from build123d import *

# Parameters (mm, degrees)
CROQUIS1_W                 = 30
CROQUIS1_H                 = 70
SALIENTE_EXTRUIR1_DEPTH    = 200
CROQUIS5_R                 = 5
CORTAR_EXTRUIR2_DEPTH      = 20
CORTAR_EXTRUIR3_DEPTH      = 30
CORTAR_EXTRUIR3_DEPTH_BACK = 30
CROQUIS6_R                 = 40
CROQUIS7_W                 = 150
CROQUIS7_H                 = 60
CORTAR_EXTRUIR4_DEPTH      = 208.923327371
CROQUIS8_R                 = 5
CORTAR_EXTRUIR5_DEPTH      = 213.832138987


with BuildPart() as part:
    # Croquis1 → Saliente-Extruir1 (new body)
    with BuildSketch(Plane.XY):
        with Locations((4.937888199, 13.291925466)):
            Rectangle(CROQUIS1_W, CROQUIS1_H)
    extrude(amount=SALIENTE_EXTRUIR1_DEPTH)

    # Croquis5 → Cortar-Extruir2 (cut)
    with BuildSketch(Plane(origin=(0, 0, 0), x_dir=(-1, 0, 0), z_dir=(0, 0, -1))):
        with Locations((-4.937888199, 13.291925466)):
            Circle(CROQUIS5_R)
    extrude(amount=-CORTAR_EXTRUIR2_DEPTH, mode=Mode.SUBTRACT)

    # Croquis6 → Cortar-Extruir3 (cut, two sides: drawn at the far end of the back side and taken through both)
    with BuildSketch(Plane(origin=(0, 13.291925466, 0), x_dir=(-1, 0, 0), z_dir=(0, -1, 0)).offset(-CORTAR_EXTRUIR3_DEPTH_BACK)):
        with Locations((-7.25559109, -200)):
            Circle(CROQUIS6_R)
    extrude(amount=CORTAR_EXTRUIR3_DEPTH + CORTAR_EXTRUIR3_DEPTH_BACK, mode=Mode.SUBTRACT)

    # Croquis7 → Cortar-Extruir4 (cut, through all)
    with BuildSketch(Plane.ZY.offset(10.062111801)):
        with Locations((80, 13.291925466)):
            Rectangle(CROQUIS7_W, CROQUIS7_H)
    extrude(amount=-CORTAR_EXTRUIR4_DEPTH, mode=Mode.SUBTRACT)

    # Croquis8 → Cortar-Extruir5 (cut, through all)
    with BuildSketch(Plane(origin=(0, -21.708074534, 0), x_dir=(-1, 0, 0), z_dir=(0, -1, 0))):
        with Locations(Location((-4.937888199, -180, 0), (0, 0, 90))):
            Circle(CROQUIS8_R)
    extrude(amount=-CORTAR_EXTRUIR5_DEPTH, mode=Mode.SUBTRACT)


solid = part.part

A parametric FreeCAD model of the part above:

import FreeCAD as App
import Part
import Sketcher
from FreeCAD import Vector


def add_polygon(sketch, points):
    """Adds a closed chain of lines whose ends are joined by coincident constraints."""
    first, n = sketch.GeometryCount, len(points)
    for a, b in zip(points, points[1:] + points[:1]):
        sketch.addGeometry(Part.LineSegment(App.Vector(*a, 0), App.Vector(*b, 0)), False)
    for i in range(n):
        sketch.addConstraint(Sketcher.Constraint("Coincident", first + i, 2, first + (i + 1) % n, 1))

doc = App.newDocument("Part")
params = doc.addObject("Spreadsheet::Sheet", "Params")
for row, (alias, value) in enumerate([
    ("sketch1_width", "30 mm"),
    ("sketch1_height", "70 mm"),
    ("pad1_length", "200 mm"),
    ("sketch2_diameter", "10 mm"),
    ("pocket1_length", "20 mm"),
    ("sketch3_diameter", "80 mm"),
    ("pocket2_length", "30 mm"),
    ("pocket2_length2", "30 mm"),
    ("sketch4_width", "60 mm"),
    ("sketch4_height", "150 mm"),
    ("sketch5_diameter", "10 mm"),
], start=1):
    params.set(f"A{row}", alias)
    params.set(f"B{row}", "=" + value)
    params.setAlias(f"B{row}", alias)

body = doc.addObject("PartDesign::Body", "Body")

# Sketch on XY plane
sketch1 = body.newObject("Sketcher::SketchObject", "Sketch")
sketch1.AttachmentSupport = (doc.getObject("XY_Plane"), [""])
sketch1.MapMode = "FlatFace"
add_polygon(sketch1, [(-10, 48), (-10, -22), (20, -22), (20, 48)])  # lines 0-3
sketch1.addConstraint([
    Sketcher.Constraint("Vertical", 0),
    Sketcher.Constraint("Horizontal", 1),
    Sketcher.Constraint("Vertical", 2),
    Sketcher.Constraint("Horizontal", 3),
    Sketcher.Constraint("DistanceX", 1, 1, 1, 2, 30.0),
    Sketcher.Constraint("DistanceY", 0, 2, 0, 1, 70.0),
    Sketcher.Constraint("DistanceX", 0, 2, -1, 1, 10.062112),
    Sketcher.Constraint("DistanceY", 0, 2, -1, 1, 21.708075),
])
sketch1.setExpression("Constraints[8]", "Params.sketch1_width")
sketch1.setExpression("Constraints[9]", "Params.sketch1_height")
pad1 = body.newObject("PartDesign::Pad", "Pad")
pad1.Profile = sketch1
pad1.setExpression("Length", "Params.pad1_length")

# Sketch on XY plane
sketch2 = body.newObject("Sketcher::SketchObject", "Sketch001")
sketch2.AttachmentSupport = (doc.getObject("XY_Plane"), [""])
sketch2.MapMode = "FlatFace"
sketch2.addGeometry(Part.Circle(Vector(5, 13, 0), Vector(0, 0, 1), 5), False)
sketch2.addConstraint([
    Sketcher.Constraint("Diameter", 0, 10.0),
    Sketcher.Constraint("DistanceX", -1, 1, 0, 3, 4.937888),
    Sketcher.Constraint("DistanceY", -1, 1, 0, 3, 13.291925),
])
sketch2.setExpression("Constraints[0]", "Params.sketch2_diameter")
pocket1 = body.newObject("PartDesign::Pocket", "Pocket")
pocket1.Profile = sketch2
pocket1.setExpression("Length", "Params.pocket1_length")
pocket1.Reversed = True

# Sketch on XZ plane
sketch3 = body.newObject("Sketcher::SketchObject", "Sketch002")
sketch3.AttachmentSupport = (doc.getObject("XZ_Plane"), [""])
sketch3.MapMode = "FlatFace"
sketch3.AttachmentOffset = App.Placement(Vector(0, 0, -13.291925), App.Rotation())
sketch3.addGeometry(Part.Circle(Vector(7, 200, 0), Vector(0, 0, 1), 40), False)
sketch3.addConstraint([
    Sketcher.Constraint("Diameter", 0, 80.0),
    Sketcher.Constraint("DistanceY", -1, 1, 0, 3, 200.0),
    Sketcher.Constraint("DistanceX", -1, 1, 0, 3, 7.255591),
])
sketch3.setExpression("Constraints[0]", "Params.sketch3_diameter")
pocket2 = body.newObject("PartDesign::Pocket", "Pocket001")
pocket2.Profile = sketch3
pocket2.Type = "TwoLengths"
pocket2.setExpression("Length", "Params.pocket2_length")
pocket2.setExpression("Length2", "Params.pocket2_length2")
pocket2.Reversed = True

# Sketch on YZ plane
sketch4 = body.newObject("Sketcher::SketchObject", "Sketch003")
sketch4.AttachmentSupport = (doc.getObject("YZ_Plane"), [""])
sketch4.MapMode = "FlatFace"
sketch4.AttachmentOffset = App.Placement(Vector(0, 0, -10.062112), App.Rotation())
add_polygon(sketch4, [(43, 5), (-17, 5), (-17, 155), (43, 155)])  # lines 0-3
sketch4.addConstraint([
    Sketcher.Constraint("Horizontal", 0),
    Sketcher.Constraint("Vertical", 1),
    Sketcher.Constraint("Horizontal", 2),
    Sketcher.Constraint("Vertical", 3),
    Sketcher.Constraint("DistanceX", 0, 2, 0, 1, 60.0),
    Sketcher.Constraint("DistanceY", 1, 1, 1, 2, 150.0),
    Sketcher.Constraint("DistanceY", -1, 1, 0, 2, 5.0),
    Sketcher.Constraint("DistanceX", 0, 2, -1, 1, 16.708075),
])
sketch4.setExpression("Constraints[8]", "Params.sketch4_width")
sketch4.setExpression("Constraints[9]", "Params.sketch4_height")
pocket3 = body.newObject("PartDesign::Pocket", "Pocket002")
pocket3.Profile = sketch4
pocket3.Type = "ThroughAll"
pocket3.Reversed = True

# Sketch on XZ plane
sketch5 = body.newObject("Sketcher::SketchObject", "Sketch004")
sketch5.AttachmentSupport = (doc.getObject("XZ_Plane"), [""])
sketch5.MapMode = "FlatFace"
sketch5.AttachmentOffset = App.Placement(Vector(0, 0, 21.708075), App.Rotation())
sketch5.addGeometry(Part.Circle(Vector(5, 180, 0), Vector(0, 0, 1), 5), False)
sketch5.addConstraint([
    Sketcher.Constraint("Diameter", 0, 10.0),
    Sketcher.Constraint("DistanceY", -1, 1, 0, 3, 180.0),
    Sketcher.Constraint("DistanceX", -1, 1, 0, 3, 4.937888),
])
sketch5.setExpression("Constraints[0]", "Params.sketch5_diameter")
pocket4 = body.newObject("PartDesign::Pocket", "Pocket003")
pocket4.Profile = sketch5
pocket4.Type = "ThroughAll"

doc.recompute()
